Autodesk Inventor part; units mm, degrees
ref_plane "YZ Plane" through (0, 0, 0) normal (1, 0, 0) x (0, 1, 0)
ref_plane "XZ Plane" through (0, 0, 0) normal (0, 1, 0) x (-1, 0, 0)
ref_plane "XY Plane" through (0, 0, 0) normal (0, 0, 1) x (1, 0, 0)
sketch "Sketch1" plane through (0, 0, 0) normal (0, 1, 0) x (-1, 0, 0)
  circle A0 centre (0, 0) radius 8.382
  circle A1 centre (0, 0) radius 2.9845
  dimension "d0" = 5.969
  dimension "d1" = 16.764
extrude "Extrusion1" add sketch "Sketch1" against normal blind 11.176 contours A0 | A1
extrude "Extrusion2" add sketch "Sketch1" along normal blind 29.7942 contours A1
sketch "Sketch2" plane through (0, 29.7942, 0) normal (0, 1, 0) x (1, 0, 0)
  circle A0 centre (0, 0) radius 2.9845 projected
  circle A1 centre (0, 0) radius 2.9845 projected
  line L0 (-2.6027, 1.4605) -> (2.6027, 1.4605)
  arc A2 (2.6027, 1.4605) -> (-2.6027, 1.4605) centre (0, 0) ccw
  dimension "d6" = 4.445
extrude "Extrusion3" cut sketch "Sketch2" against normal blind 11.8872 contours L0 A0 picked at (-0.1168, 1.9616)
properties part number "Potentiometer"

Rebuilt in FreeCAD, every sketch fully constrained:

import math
import FreeCAD as App
import Part
import Sketcher

V = App.Vector
Q = App.Units.Quantity

doc = App.newDocument("Part")
body = doc.addObject("PartDesign::Body", "Body")

# Sketch on XZ plane
sketch1 = body.newObject("Sketcher::SketchObject", "Sketch")
sketch1.AttachmentSupport = (doc.getObject("XZ_Plane"), [""])
sketch1.MapMode = "FlatFace"
sketch1.addGeometry(Part.Circle(V(0, 0, 0), V(0, 0, 1), 8.382), False)
sketch1.addConstraint([
    Sketcher.Constraint("Coincident", 0, 3, -1, 1),
    Sketcher.Constraint("Diameter", 0, Q("0.66 in")),
])
pad1 = body.newObject("PartDesign::Pad", "Pad")
pad1.Profile = sketch1
pad1.Length = Q("0.44 in")

# Sketch on XZ plane
sketch2 = body.newObject("Sketcher::SketchObject", "Sketch001")
sketch2.AttachmentSupport = (doc.getObject("XZ_Plane"), [""])
sketch2.MapMode = "FlatFace"
sketch2.addGeometry(Part.Circle(V(0, 0, 0), V(0, 0, 1), 2.9845), False)
sketch2.addConstraint([
    Sketcher.Constraint("Coincident", 0, 3, -1, 1),
    Sketcher.Constraint("Diameter", 0, Q("0.235 in")),
])
pad2 = body.newObject("PartDesign::Pad", "Pad001")
pad2.Profile = sketch2
pad2.Length = Q("1.173 in")
pad2.Reversed = True

# Sketch on XZ plane
sketch3 = body.newObject("Sketcher::SketchObject", "Sketch002")
sketch3.AttachmentSupport = (doc.getObject("XZ_Plane"), [""])
sketch3.MapMode = "FlatFace"
sketch3.AttachmentOffset = App.Placement(V(0, 0, -1.173 * 25.4), App.Rotation())
sketch3.addGeometry([
    Part.LineSegment(V(-2.6027, -1.4605, 0), V(2.6027, -1.4605, 0)),
    Part.ArcOfCircle(Part.Circle(V(0, 0, 0), V(0, 0, 1), 2.9845), math.radians(-150.701124), math.radians(-29.298876)),
], False)
sketch3.addConstraint([
    Sketcher.Constraint("Coincident", 0, 1, 1, 1),
    Sketcher.Constraint("Coincident", 1, 2, 0, 2),
    Sketcher.Constraint("Horizontal", 0),
    Sketcher.Constraint("Coincident", 1, 3, -1, 1),
    Sketcher.Constraint("Radius", 1, Q("0.1175 in")),
    Sketcher.Constraint("DistanceX", 0, 1, 0, 2, 5.2054),
])
pocket1 = body.newObject("PartDesign::Pocket", "Pocket")
pocket1.Profile = sketch3
pocket1.Length = Q("0.468 in")
pocket1.Reversed = True

doc.recompute()
